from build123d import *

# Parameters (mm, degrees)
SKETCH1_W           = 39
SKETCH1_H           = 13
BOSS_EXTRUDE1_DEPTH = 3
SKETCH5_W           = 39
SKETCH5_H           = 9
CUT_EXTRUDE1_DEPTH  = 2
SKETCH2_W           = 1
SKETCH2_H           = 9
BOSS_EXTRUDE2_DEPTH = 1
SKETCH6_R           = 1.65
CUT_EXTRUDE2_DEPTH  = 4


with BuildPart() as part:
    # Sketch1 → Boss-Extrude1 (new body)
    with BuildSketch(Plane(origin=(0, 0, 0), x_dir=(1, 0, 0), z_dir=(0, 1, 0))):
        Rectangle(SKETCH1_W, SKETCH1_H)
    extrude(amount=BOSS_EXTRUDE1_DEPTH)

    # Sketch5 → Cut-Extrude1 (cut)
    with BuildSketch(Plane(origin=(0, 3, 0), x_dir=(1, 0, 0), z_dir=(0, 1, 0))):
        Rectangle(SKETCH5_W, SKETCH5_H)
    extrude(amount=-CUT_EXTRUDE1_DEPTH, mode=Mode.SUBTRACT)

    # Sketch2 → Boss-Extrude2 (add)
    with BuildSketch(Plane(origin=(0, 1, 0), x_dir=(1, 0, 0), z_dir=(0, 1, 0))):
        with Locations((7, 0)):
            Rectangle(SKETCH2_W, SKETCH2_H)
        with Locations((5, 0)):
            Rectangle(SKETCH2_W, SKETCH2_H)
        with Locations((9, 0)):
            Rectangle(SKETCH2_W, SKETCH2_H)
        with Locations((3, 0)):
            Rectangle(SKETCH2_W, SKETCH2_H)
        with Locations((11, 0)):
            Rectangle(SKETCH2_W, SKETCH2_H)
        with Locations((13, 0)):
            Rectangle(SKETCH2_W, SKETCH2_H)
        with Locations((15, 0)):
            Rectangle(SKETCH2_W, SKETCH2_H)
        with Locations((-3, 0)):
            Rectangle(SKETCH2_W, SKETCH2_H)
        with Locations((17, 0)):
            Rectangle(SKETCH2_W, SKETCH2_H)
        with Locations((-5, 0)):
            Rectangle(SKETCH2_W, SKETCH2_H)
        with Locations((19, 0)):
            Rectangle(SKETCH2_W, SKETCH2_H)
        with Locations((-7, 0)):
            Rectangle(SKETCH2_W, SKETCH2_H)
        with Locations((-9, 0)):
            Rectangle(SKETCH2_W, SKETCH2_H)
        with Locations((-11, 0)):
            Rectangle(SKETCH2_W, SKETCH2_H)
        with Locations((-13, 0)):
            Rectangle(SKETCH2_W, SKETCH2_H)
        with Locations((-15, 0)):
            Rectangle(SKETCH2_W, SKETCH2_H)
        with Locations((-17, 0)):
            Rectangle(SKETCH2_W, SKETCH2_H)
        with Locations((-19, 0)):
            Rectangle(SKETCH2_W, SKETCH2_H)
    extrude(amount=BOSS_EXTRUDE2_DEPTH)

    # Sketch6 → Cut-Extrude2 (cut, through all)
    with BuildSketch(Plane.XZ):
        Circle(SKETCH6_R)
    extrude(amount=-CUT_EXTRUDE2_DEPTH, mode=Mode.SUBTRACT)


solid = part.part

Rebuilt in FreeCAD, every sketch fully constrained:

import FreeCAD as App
import Part
import Sketcher
from FreeCAD import Vector
Q = App.Units.Quantity


def add_polygon(sketch, points):
    """Adds a closed chain of lines whose ends are joined by coincident constraints."""
    first, n = sketch.GeometryCount, len(points)
    for a, b in zip(points, points[1:] + points[:1]):
        sketch.addGeometry(Part.LineSegment(App.Vector(*a, 0), App.Vector(*b, 0)), False)
    for i in range(n):
        sketch.addConstraint(Sketcher.Constraint("Coincident", first + i, 2, first + (i + 1) % n, 1))

doc = App.newDocument("Part")
body = doc.addObject("PartDesign::Body", "Body")

sketch1 = doc.addObject("Sketcher::SketchObject", "Sketch")
body.addObject(sketch1)
sketch1.AttachmentSupport = (doc.XZ_Plane, [""])
sketch1.MapMode = "FlatFace"
add_polygon(sketch1, [(-19.5, -6.5), (-19.5, 6.5), (19.5, 6.5), (19.5, -6.5)])
sketch1.addConstraint([
    Sketcher.Constraint("Vertical", 0),
    Sketcher.Constraint("Horizontal", 1),
    Sketcher.Constraint("Vertical", 2),
    Sketcher.Constraint("Horizontal", 3),
    Sketcher.Constraint("Symmetric", 0, 2, 2, 2, -1, 1),
    Sketcher.Constraint("DistanceX", 1, 1, 1, 2, Q("39 mm")),
    Sketcher.Constraint("DistanceY", 0, 1, 0, 2, Q("13 mm")),
])
pad1 = doc.addObject("PartDesign::Pad", "Pad")
body.addObject(pad1)
pad1.Profile = sketch1
pad1.Length = 3
pad1.Reversed = True

sketch2 = doc.addObject("Sketcher::SketchObject", "Sketch001")
body.addObject(sketch2)
sketch2.AttachmentSupport = (doc.XZ_Plane, [""])
sketch2.MapMode = "FlatFace"
sketch2.AttachmentOffset = App.Placement(Vector(0, 0, -3), App.Rotation())
add_polygon(sketch2, [(-19.5, -4.5), (-19.5, 4.5), (19.5, 4.5), (19.5, -4.5)])
sketch2.addConstraint([
    Sketcher.Constraint("Vertical", 0),
    Sketcher.Constraint("Horizontal", 1),
    Sketcher.Constraint("Vertical", 2),
    Sketcher.Constraint("Horizontal", 3),
    Sketcher.Constraint("Symmetric", 0, 2, 2, 2, -1, 1),
    Sketcher.Constraint("DistanceX", 1, 1, 1, 2, Q("39 mm")),
    Sketcher.Constraint("DistanceY", 0, 1, 0, 2, Q("9 mm")),
])
pocket1 = doc.addObject("PartDesign::Pocket", "Pocket")
body.addObject(pocket1)
pocket1.Profile = sketch2
pocket1.Length = 2
pocket1.Reversed = True

sketch3 = doc.addObject("Sketcher::SketchObject", "Sketch002")
body.addObject(sketch3)
sketch3.AttachmentSupport = (doc.XZ_Plane, [""])
sketch3.MapMode = "FlatFace"
sketch3.AttachmentOffset = App.Placement(Vector(0, 0, -1), App.Rotation())
add_polygon(sketch3, [(6.5, -4.5), (6.5, 4.5), (7.5, 4.5), (7.5, -4.5)])
add_polygon(sketch3, [(4.5, -4.5), (4.5, 4.5), (5.5, 4.5), (5.5, -4.5)])
add_polygon(sketch3, [(8.5, -4.5), (8.5, 4.5), (9.5, 4.5), (9.5, -4.5)])
add_polygon(sketch3, [(2.5, -4.5), (2.5, 4.5), (3.5, 4.5), (3.5, -4.5)])
add_polygon(sketch3, [(10.5, -4.5), (10.5, 4.5), (11.5, 4.5), (11.5, -4.5)])
add_polygon(sketch3, [(12.5, -4.5), (12.5, 4.5), (13.5, 4.5), (13.5, -4.5)])
add_polygon(sketch3, [(14.5, -4.5), (14.5, 4.5), (15.5, 4.5), (15.5, -4.5)])
add_polygon(sketch3, [(-3.5, -4.5), (-3.5, 4.5), (-2.5, 4.5), (-2.5, -4.5)])
add_polygon(sketch3, [(16.5, -4.5), (16.5, 4.5), (17.5, 4.5), (17.5, -4.5)])
add_polygon(sketch3, [(-5.5, -4.5), (-5.5, 4.5), (-4.5, 4.5), (-4.5, -4.5)])
add_polygon(sketch3, [(18.5, -4.5), (18.5, 4.5), (19.5, 4.5), (19.5, -4.5)])
add_polygon(sketch3, [(-7.5, -4.5), (-7.5, 4.5), (-6.5, 4.5), (-6.5, -4.5)])
add_polygon(sketch3, [(-9.5, -4.5), (-9.5, 4.5), (-8.5, 4.5), (-8.5, -4.5)])
add_polygon(sketch3, [(-11.5, -4.5), (-11.5, 4.5), (-10.5, 4.5), (-10.5, -4.5)])
add_polygon(sketch3, [(-13.5, -4.5), (-13.5, 4.5), (-12.5, 4.5), (-12.5, -4.5)])
add_polygon(sketch3, [(-15.5, -4.5), (-15.5, 4.5), (-14.5, 4.5), (-14.5, -4.5)])
add_polygon(sketch3, [(-17.5, -4.5), (-17.5, 4.5), (-16.5, 4.5), (-16.5, -4.5)])
add_polygon(sketch3, [(-19.5, -4.5), (-19.5, 4.5), (-18.5, 4.5), (-18.5, -4.5)])
sketch3.addConstraint([
    Sketcher.Constraint("Vertical", 0),
    Sketcher.Constraint("Horizontal", 1),
    Sketcher.Constraint("Vertical", 2),
    Sketcher.Constraint("Horizontal", 3),
    Sketcher.Constraint("Vertical", 4),
    Sketcher.Constraint("Horizontal", 5),
    Sketcher.Constraint("Vertical", 6),
    Sketcher.Constraint("Horizontal", 7),
    Sketcher.Constraint("Vertical", 8),
    Sketcher.Constraint("Horizontal", 9),
    Sketcher.Constraint("Vertical", 10),
    Sketcher.Constraint("Horizontal", 11),
    Sketcher.Constraint("Vertical", 12),
    Sketcher.Constraint("Horizontal", 13),
    Sketcher.Constraint("Vertical", 14),
    Sketcher.Constraint("Horizontal", 15),
    Sketcher.Constraint("Vertical", 16),
    Sketcher.Constraint("Horizontal", 17),
    Sketcher.Constraint("Vertical", 18),
    Sketcher.Constraint("Horizontal", 19),
    Sketcher.Constraint("Vertical", 20),
    Sketcher.Constraint("Horizontal", 21),
    Sketcher.Constraint("Vertical", 22),
    Sketcher.Constraint("Horizontal", 23),
    Sketcher.Constraint("Vertical", 24),
    Sketcher.Constraint("Horizontal", 25),
    Sketcher.Constraint("Vertical", 26),
    Sketcher.Constraint("Horizontal", 27),
    Sketcher.Constraint("Vertical", 28),
    Sketcher.Constraint("Horizontal", 29),
    Sketcher.Constraint("Vertical", 30),
    Sketcher.Constraint("Horizontal", 31),
    Sketcher.Constraint("Vertical", 32),
    Sketcher.Constraint("Horizontal", 33),
    Sketcher.Constraint("Vertical", 34),
    Sketcher.Constraint("Horizontal", 35),
    Sketcher.Constraint("Vertical", 36),
    Sketcher.Constraint("Horizontal", 37),
    Sketcher.Constraint("Vertical", 38),
    Sketcher.Constraint("Horizontal", 39),
    Sketcher.Constraint("Vertical", 40),
    Sketcher.Constraint("Horizontal", 41),
    Sketcher.Constraint("Vertical", 42),
    Sketcher.Constraint("Horizontal", 43),
    Sketcher.Constraint("Vertical", 44),
    Sketcher.Constraint("Horizontal", 45),
    Sketcher.Constraint("Vertical", 46),
    Sketcher.Constraint("Horizontal", 47),
    Sketcher.Constraint("Vertical", 48),
    Sketcher.Constraint("Horizontal", 49),
    Sketcher.Constraint("Vertical", 50),
    Sketcher.Constraint("Horizontal", 51),
    Sketcher.Constraint("Vertical", 52),
    Sketcher.Constraint("Horizontal", 53),
    Sketcher.Constraint("Vertical", 54),
    Sketcher.Constraint("Horizontal", 55),
    Sketcher.Constraint("Vertical", 56),
    Sketcher.Constraint("Horizontal", 57),
    Sketcher.Constraint("Vertical", 58),
    Sketcher.Constraint("Horizontal", 59),
    Sketcher.Constraint("Vertical", 60),
    Sketcher.Constraint("Horizontal", 61),
    Sketcher.Constraint("Vertical", 62),
    Sketcher.Constraint("Horizontal", 63),
    Sketcher.Constraint("Vertical", 64),
    Sketcher.Constraint("Horizontal", 65),
    Sketcher.Constraint("Vertical", 66),
    Sketcher.Constraint("Horizontal", 67),
    Sketcher.Constraint("Vertical", 68),
    Sketcher.Constraint("Horizontal", 69),
    Sketcher.Constraint("Vertical", 70),
    Sketcher.Constraint("Horizontal", 71),
    Sketcher.Constraint("Symmetric", 14, 2, 28, 2, -1, 1),
    Sketcher.Constraint("Symmetric", 12, 2, 30, 2, -1, 1),
    Sketcher.Constraint("Symmetric", 6, 2, 36, 2, -1, 1),
    Sketcher.Constraint("Symmetric", 4, 2, 38, 2, -1, 1),
    Sketcher.Constraint("Symmetric", 2, 2, 44, 2, -1, 1),
    Sketcher.Constraint("Symmetric", 0, 2, 46, 2, -1, 1),
    Sketcher.Constraint("Symmetric", 10, 2, 48, 2, -1, 1),
    Sketcher.Constraint("Symmetric", 8, 2, 50, 2, -1, 1),
    Sketcher.Constraint("Symmetric", 18, 2, 52, 2, -1, 1),
    Sketcher.Constraint("Symmetric", 16, 2, 54, 2, -1, 1),
    Sketcher.Constraint("Symmetric", 22, 2, 56, 2, -1, 1),
    Sketcher.Constraint("Symmetric", 20, 2, 58, 2, -1, 1),
    Sketcher.Constraint("Symmetric", 26, 2, 60, 2, -1, 1),
    Sketcher.Constraint("Symmetric", 24, 2, 62, 2, -1, 1),
    Sketcher.Constraint("Symmetric", 34, 2, 64, 2, -1, 1),
    Sketcher.Constraint("Symmetric", 32, 2, 66, 2, -1, 1),
    Sketcher.Constraint("Symmetric", 42, 2, 68, 2, -1, 1),
    Sketcher.Constraint("Symmetric", 40, 2, 70, 2, -1, 1),
    Sketcher.Constraint("Horizontal", 1, 2, 4, 2),
    Sketcher.Constraint("Horizontal", 3, 2, 6, 2),
    Sketcher.Constraint("Horizontal", 5, 2, 8, 2),
    Sketcher.Constraint("Horizontal", 7, 2, 10, 2),
    Sketcher.Constraint("Horizontal", 9, 2, 12, 2),
    Sketcher.Constraint("Horizontal", 11, 2, 14, 2),
    Sketcher.Constraint("Horizontal", 13, 2, 16, 2),
    Sketcher.Constraint("Horizontal", 15, 2, 18, 2),
    Sketcher.Constraint("Horizontal", 17, 2, 20, 2),
    Sketcher.Constraint("Horizontal", 19, 2, 22, 2),
    Sketcher.Constraint("Horizontal", 21, 2, 24, 2),
    Sketcher.Constraint("Horizontal", 23, 2, 26, 2),
    Sketcher.Constraint("Horizontal", 25, 2, 28, 2),
    Sketcher.Constraint("Horizontal", 29, 2, 32, 2),
    Sketcher.Constraint("Horizontal", 31, 2, 34, 2),
    Sketcher.Constraint("Horizontal", 37, 2, 40, 2),
    Sketcher.Constraint("Horizontal", 39, 2, 42, 2),
    Sketcher.Constraint("Equal", 3, 5),
    Sketcher.Constraint("Equal", 7, 9),
    Sketcher.Constraint("Equal", 11, 13),
    Sketcher.Constraint("Equal", 15, 17),
    Sketcher.Constraint("Equal", 19, 21),
    Sketcher.Constraint("Equal", 23, 25),
    Sketcher.Constraint("Equal", 31, 33),
    Sketcher.Constraint("Equal", 39, 41),
    Sketcher.Constraint("DistanceX", 1, 1, 1, 2, Q("1 mm")),
    Sketcher.Constraint("DistanceY", 0, 1, 0, 2, Q("9 mm")),
    Sketcher.Constraint("DistanceX", -1, 1, 0, 2, Q("6.5 mm")),
    Sketcher.Constraint("DistanceX", -1, 1, 4, 2, Q("4.5 mm")),
    Sketcher.Constraint("DistanceX", -1, 1, 8, 2, Q("8.5 mm")),
    Sketcher.Constraint("DistanceX", -1, 1, 12, 2, Q("2.5 mm")),
    Sketcher.Constraint("DistanceX", -1, 1, 16, 2, Q("10.5 mm")),
    Sketcher.Constraint("DistanceX", -1, 1, 20, 2, Q("12.5 mm")),
    Sketcher.Constraint("DistanceX", -1, 1, 24, 2, Q("14.5 mm")),
    Sketcher.Constraint("DistanceX", -1, 1, 32, 2, Q("16.5 mm")),
    Sketcher.Constraint("DistanceX", -1, 1, 40, 2, Q("18.5 mm")),
])
pad2 = doc.addObject("PartDesign::Pad", "Pad001")
body.addObject(pad2)
pad2.Profile = sketch3
pad2.Length = 1
pad2.Reversed = True

sketch4 = doc.addObject("Sketcher::SketchObject", "Sketch003")
body.addObject(sketch4)
sketch4.AttachmentSupport = (doc.XZ_Plane, [""])
sketch4.MapMode = "FlatFace"
sketch4.addGeometry(Part.Circle(Vector(0, 0, 0), Vector(0, 0, 1), 1.65), False)
sketch4.addConstraint([
    Sketcher.Constraint("Coincident", 0, 3, -1, 1),
    Sketcher.Constraint("Diameter", 0, Q("3.3 mm")),
])
pocket2 = doc.addObject("PartDesign::Pocket", "Pocket001")
body.addObject(pocket2)
pocket2.Profile = sketch4
pocket2.Type = "ThroughAll"

doc.recompute()
